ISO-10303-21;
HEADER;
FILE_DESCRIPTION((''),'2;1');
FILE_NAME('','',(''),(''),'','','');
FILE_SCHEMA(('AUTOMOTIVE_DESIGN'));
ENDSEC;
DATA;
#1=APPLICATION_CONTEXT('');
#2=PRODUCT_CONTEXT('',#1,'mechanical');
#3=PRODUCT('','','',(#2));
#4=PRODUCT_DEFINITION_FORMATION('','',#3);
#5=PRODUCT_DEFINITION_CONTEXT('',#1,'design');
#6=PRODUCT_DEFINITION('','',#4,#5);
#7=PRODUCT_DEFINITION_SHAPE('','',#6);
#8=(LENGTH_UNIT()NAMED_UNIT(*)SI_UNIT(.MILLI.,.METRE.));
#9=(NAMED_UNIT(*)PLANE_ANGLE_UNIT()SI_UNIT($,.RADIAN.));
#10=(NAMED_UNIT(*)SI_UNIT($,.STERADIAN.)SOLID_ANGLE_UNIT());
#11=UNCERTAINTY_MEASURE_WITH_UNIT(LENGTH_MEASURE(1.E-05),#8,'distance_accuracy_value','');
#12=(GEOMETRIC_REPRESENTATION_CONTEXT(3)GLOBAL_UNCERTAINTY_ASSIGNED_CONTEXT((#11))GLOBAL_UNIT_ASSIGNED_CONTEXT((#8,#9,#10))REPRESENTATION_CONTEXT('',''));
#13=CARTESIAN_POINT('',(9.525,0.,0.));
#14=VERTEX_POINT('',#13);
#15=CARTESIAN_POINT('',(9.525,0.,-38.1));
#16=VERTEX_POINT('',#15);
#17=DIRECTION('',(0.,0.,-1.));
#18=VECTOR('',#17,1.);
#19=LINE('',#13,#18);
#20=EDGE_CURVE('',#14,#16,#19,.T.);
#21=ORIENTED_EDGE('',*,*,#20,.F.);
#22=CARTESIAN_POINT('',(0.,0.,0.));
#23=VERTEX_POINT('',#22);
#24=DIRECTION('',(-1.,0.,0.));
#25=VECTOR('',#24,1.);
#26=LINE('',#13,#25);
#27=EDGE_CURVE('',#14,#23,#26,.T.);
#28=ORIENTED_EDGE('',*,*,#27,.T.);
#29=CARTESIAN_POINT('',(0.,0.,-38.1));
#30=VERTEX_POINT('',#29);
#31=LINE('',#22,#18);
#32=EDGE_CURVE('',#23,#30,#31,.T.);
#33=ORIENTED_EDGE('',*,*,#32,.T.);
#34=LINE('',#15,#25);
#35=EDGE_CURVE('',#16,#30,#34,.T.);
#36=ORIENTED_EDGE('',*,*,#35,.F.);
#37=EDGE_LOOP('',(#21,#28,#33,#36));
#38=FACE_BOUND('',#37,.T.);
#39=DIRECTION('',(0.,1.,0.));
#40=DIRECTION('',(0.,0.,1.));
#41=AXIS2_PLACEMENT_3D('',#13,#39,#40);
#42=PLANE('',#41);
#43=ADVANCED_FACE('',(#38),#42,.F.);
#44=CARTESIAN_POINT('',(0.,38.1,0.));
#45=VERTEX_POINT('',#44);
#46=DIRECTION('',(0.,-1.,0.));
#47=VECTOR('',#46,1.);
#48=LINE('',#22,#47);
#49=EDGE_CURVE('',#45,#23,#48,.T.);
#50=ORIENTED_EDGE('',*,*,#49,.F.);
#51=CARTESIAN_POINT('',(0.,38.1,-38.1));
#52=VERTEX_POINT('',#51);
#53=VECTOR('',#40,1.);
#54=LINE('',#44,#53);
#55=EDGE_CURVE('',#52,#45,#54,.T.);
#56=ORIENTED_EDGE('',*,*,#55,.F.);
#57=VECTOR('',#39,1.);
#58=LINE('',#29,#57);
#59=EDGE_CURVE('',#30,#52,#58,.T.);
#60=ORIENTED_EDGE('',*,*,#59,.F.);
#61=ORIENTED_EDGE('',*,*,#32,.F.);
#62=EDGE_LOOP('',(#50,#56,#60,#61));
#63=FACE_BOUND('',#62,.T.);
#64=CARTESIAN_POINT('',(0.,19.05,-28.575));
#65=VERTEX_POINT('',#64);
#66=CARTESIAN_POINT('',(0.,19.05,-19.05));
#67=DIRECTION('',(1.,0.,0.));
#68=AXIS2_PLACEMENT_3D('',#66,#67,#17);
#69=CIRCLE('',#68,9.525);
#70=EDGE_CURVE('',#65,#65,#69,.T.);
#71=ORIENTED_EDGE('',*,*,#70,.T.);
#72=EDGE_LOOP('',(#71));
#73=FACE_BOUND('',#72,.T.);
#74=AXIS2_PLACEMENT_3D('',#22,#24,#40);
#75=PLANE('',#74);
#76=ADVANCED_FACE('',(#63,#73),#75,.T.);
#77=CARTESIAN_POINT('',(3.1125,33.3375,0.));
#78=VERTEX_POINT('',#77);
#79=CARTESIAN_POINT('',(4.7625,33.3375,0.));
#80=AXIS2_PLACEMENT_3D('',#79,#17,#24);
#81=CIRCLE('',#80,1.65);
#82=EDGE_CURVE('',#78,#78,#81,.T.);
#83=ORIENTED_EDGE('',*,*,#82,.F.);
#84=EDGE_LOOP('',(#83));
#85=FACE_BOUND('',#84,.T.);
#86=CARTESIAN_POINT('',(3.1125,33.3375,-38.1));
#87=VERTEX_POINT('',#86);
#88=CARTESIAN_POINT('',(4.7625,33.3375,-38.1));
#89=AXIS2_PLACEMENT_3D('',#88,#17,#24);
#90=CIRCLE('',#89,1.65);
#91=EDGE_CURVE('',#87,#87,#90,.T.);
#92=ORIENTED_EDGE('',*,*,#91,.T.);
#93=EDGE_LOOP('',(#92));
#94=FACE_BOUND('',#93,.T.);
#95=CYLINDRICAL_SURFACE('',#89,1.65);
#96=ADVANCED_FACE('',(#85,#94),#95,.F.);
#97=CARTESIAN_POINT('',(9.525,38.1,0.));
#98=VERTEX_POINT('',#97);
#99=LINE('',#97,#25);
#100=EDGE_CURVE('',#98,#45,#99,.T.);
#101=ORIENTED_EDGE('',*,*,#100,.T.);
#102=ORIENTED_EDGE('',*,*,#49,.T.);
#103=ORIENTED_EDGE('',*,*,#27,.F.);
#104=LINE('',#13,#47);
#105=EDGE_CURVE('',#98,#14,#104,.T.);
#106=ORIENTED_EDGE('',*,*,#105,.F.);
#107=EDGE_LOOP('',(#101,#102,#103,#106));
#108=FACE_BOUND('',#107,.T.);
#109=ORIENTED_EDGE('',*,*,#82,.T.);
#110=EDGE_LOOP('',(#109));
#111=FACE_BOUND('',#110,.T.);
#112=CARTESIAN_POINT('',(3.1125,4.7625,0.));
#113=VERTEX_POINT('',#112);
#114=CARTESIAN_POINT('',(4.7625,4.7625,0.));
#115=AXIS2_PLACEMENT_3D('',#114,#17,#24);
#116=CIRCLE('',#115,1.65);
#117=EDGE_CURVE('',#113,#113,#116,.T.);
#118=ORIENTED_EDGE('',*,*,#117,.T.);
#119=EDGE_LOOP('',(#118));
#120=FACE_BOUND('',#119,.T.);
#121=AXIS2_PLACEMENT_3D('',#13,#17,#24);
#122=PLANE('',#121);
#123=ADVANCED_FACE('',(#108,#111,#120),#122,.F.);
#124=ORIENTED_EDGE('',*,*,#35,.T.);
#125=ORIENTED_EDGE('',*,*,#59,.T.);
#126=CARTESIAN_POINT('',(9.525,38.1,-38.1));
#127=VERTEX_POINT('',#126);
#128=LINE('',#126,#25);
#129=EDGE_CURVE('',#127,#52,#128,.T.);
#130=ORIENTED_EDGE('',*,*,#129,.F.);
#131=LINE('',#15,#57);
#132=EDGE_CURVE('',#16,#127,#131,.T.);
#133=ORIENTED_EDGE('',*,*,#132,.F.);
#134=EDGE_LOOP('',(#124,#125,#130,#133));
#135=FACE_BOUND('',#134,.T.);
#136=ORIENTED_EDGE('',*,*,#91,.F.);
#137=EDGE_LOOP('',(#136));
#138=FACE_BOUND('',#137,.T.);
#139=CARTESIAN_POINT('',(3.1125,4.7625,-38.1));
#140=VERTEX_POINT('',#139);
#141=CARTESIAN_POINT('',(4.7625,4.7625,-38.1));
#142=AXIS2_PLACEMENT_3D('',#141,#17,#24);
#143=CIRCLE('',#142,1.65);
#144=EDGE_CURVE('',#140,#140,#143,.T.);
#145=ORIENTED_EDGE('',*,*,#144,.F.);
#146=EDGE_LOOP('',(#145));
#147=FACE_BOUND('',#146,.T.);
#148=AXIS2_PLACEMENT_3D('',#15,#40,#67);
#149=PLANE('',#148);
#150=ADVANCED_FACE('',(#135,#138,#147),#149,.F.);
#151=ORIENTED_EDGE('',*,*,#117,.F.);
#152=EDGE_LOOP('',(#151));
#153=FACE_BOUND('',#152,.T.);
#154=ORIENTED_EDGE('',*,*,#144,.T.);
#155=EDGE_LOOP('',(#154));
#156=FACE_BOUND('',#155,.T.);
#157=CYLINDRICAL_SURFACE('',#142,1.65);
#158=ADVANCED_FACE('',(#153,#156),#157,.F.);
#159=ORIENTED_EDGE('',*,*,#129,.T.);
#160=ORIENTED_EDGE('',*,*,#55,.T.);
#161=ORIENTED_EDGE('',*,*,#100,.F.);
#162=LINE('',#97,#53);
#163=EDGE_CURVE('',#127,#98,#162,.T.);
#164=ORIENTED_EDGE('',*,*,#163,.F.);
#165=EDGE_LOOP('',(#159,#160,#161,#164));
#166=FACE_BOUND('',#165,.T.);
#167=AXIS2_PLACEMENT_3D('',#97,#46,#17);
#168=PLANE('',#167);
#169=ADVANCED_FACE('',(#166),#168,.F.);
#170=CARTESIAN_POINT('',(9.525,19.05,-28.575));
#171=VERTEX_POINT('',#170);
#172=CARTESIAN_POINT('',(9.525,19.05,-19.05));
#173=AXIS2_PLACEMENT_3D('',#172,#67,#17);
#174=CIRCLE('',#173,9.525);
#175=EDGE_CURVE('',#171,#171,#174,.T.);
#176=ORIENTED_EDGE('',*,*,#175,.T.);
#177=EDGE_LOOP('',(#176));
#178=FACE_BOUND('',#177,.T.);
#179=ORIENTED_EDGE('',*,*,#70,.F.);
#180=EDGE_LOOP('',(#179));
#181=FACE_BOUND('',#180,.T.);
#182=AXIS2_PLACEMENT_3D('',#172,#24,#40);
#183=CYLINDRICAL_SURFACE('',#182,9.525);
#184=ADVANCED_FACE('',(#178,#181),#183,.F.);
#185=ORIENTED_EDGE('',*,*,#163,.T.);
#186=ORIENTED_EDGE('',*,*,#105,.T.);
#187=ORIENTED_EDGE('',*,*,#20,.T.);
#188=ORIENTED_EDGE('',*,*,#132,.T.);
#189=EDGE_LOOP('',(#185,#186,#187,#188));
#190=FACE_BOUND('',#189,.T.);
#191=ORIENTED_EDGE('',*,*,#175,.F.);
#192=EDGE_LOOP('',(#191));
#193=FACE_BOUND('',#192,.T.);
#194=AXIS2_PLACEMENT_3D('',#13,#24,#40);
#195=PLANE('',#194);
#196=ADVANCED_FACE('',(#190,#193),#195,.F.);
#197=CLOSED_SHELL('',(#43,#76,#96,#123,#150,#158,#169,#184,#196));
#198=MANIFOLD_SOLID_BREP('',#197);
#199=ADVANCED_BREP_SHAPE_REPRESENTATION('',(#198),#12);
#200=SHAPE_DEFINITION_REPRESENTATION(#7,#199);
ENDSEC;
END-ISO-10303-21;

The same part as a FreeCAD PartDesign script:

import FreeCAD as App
import Part
import Sketcher
from FreeCAD import Vector
Q = App.Units.Quantity


def add_polygon(sketch, points):
    """Adds a closed chain of lines whose ends are joined by coincident constraints."""
    first, n = sketch.GeometryCount, len(points)
    for a, b in zip(points, points[1:] + points[:1]):
        sketch.addGeometry(Part.LineSegment(App.Vector(*a, 0), App.Vector(*b, 0)), False)
    for i in range(n):
        sketch.addConstraint(Sketcher.Constraint("Coincident", first + i, 2, first + (i + 1) % n, 1))

doc = App.newDocument("Part")
body = doc.addObject("PartDesign::Body", "Body")

sketch1 = body.newObject("Sketcher::SketchObject", "Sketch")
sketch1.AttachmentSupport = (doc.getObject("YZ_Plane"), [""])
sketch1.MapMode = "FlatFace"
add_polygon(sketch1, [(38.1, 0), (0, 0), (0, -38.1), (38.1, -38.1)])
sketch1.addGeometry(Part.Circle(Vector(19.05, -19.05, 0), Vector(0, 0, 1), 9.525), False)
sketch1.addConstraint([
    Sketcher.Constraint("Horizontal", 0),
    Sketcher.Constraint("Vertical", 1),
    Sketcher.Constraint("Horizontal", 2),
    Sketcher.Constraint("Vertical", 3),
    Sketcher.Constraint("Coincident", 0, 2, -1, 1),
    Sketcher.Constraint("Equal", 2, 1),
    Sketcher.Constraint("Diameter", 4, Q("0.75 in")),
    Sketcher.Constraint("DistanceX", 0, 2, 0, 1, Q("1.5 in")),
    Sketcher.Constraint("DistanceX", -1, 1, 4, 3, Q("0.75 in")),
    Sketcher.Constraint("DistanceY", 4, 3, -1, 1, Q("0.75 in")),
])
pad1 = body.newObject("PartDesign::Pad", "Pad")
pad1.Profile = sketch1
pad1.Length = Q("0.375 in")

sketch2 = body.newObject("Sketcher::SketchObject", "Sketch001")
sketch2.AttachmentSupport = (doc.getObject("XY_Plane"), [""])
sketch2.MapMode = "FlatFace"
sketch2.AttachmentOffset = App.Placement(Vector(0, 0, -1.5 * 25.4), App.Rotation())
sketch2.addGeometry([
    Part.Circle(Vector(4.7625, 33.3375, 0), Vector(0, 0, 1), 1.65),
    Part.Circle(Vector(4.7625, 4.7625, 0), Vector(0, 0, 1), 1.65),
], False)
sketch2.addConstraint([
    Sketcher.Constraint("Equal", 0, 1),
    Sketcher.Constraint("Vertical", 0, 3, 1, 3),
    Sketcher.Constraint("Diameter", 0, 3.3),
    Sketcher.Constraint("DistanceX", -1, 1, 0, 3, Q("0.1875 in")),
    Sketcher.Constraint("DistanceY", -1, 1, 0, 3, Q("1.3125 in")),
    Sketcher.Constraint("DistanceY", -1, 1, 1, 3, Q("0.1875 in")),
])
doc.recompute()
hole = body.newObject("PartDesign::Hole", "Hole")
hole.Profile = sketch2
hole.ThreadType = "None"
hole.Diameter = 3.3
hole.DepthType = "ThroughAll"
hole.Reversed = True

doc.recompute()
